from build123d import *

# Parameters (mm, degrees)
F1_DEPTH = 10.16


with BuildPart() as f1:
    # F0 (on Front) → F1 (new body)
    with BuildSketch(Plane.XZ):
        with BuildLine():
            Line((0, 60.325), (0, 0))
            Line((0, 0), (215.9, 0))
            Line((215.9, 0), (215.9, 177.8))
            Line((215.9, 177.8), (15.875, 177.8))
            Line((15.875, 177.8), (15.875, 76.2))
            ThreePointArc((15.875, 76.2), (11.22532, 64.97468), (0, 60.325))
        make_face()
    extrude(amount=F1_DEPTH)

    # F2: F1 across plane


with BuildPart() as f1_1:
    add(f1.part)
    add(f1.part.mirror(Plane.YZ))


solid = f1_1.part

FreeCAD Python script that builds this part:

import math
import FreeCAD as App
import Part
import Sketcher

V = App.Vector
Q = App.Units.Quantity

doc = App.newDocument("Part")
body = doc.addObject("PartDesign::Body", "Body")

sketch1 = body.newObject("Sketcher::SketchObject", "Sketch")
sketch1.AttachmentSupport = (doc.getObject("XZ_Plane"), [""])
sketch1.MapMode = "FlatFace"
sketch1.addGeometry([
    Part.LineSegment(V(0, 60.325, 0), V(0, 0, 0)),
    Part.LineSegment(V(0, 0, 0), V(215.9, 0, 0)),
    Part.LineSegment(V(215.9, 0, 0), V(215.9, 177.8, 0)),
    Part.LineSegment(V(215.9, 177.8, 0), V(15.875, 177.8, 0)),
    Part.LineSegment(V(15.875, 177.8, 0), V(15.875, 76.2, 0)),
    Part.ArcOfCircle(Part.Circle(V(-0.000001, 76.200001, 0), V(0, 0, 1), 15.875001), math.radians(-89.999998), math.radians(-0.000002)),
], False)
sketch1.addConstraint([
    Sketcher.Constraint("Coincident", 0, 2, 1, 1),
    Sketcher.Constraint("Coincident", 1, 2, 2, 1),
    Sketcher.Constraint("Coincident", 2, 2, 3, 1),
    Sketcher.Constraint("Coincident", 3, 2, 4, 1),
    Sketcher.Constraint("Tangent", 4, 2, 5, 2),
    Sketcher.Constraint("Coincident", 5, 1, 0, 1),
    Sketcher.Constraint("Vertical", 0),
    Sketcher.Constraint("Horizontal", 1),
    Sketcher.Constraint("Vertical", 2),
    Sketcher.Constraint("Horizontal", 3),
    Sketcher.Constraint("Vertical", 4),
    Sketcher.Constraint("Coincident", 0, 2, -1, 1),
    Sketcher.Constraint("PointOnObject", 5, 3, -2),
    Sketcher.Constraint("DistanceY", 2, 1, 2, 2, Q("7 in")),
    Sketcher.Constraint("DistanceY", 4, 2, 4, 1, Q("4 in")),
    Sketcher.Constraint("DistanceX", 1, 1, 1, 2, Q("8.5 in")),
    Sketcher.Constraint("Radius", 5, Q("0.625 in")),
])
pad1 = body.newObject("PartDesign::Pad", "Pad")
pad1.Profile = sketch1
pad1.Length = Q("0.4 in")
body2 = doc.addObject("PartDesign::Body", "Body001")
doc.recompute()

body2.BaseFeature = body
doc.recompute()

mirroring = doc.addObject("Part::Mirroring", "Mirroring")
mirroring.Source = body
mirroring.Base = V(0, 0, 0)
mirroring.Normal = V(1, 0, 0)
body3 = doc.addObject("PartDesign::Body", "Body002")
body3.BaseFeature = mirroring
boolean = body2.newObject("PartDesign::Boolean", "Boolean")
boolean.Type = "Fuse"
boolean.addObjects([body3])
doc.recompute()
mirroring.Visibility = False

doc.recompute()
